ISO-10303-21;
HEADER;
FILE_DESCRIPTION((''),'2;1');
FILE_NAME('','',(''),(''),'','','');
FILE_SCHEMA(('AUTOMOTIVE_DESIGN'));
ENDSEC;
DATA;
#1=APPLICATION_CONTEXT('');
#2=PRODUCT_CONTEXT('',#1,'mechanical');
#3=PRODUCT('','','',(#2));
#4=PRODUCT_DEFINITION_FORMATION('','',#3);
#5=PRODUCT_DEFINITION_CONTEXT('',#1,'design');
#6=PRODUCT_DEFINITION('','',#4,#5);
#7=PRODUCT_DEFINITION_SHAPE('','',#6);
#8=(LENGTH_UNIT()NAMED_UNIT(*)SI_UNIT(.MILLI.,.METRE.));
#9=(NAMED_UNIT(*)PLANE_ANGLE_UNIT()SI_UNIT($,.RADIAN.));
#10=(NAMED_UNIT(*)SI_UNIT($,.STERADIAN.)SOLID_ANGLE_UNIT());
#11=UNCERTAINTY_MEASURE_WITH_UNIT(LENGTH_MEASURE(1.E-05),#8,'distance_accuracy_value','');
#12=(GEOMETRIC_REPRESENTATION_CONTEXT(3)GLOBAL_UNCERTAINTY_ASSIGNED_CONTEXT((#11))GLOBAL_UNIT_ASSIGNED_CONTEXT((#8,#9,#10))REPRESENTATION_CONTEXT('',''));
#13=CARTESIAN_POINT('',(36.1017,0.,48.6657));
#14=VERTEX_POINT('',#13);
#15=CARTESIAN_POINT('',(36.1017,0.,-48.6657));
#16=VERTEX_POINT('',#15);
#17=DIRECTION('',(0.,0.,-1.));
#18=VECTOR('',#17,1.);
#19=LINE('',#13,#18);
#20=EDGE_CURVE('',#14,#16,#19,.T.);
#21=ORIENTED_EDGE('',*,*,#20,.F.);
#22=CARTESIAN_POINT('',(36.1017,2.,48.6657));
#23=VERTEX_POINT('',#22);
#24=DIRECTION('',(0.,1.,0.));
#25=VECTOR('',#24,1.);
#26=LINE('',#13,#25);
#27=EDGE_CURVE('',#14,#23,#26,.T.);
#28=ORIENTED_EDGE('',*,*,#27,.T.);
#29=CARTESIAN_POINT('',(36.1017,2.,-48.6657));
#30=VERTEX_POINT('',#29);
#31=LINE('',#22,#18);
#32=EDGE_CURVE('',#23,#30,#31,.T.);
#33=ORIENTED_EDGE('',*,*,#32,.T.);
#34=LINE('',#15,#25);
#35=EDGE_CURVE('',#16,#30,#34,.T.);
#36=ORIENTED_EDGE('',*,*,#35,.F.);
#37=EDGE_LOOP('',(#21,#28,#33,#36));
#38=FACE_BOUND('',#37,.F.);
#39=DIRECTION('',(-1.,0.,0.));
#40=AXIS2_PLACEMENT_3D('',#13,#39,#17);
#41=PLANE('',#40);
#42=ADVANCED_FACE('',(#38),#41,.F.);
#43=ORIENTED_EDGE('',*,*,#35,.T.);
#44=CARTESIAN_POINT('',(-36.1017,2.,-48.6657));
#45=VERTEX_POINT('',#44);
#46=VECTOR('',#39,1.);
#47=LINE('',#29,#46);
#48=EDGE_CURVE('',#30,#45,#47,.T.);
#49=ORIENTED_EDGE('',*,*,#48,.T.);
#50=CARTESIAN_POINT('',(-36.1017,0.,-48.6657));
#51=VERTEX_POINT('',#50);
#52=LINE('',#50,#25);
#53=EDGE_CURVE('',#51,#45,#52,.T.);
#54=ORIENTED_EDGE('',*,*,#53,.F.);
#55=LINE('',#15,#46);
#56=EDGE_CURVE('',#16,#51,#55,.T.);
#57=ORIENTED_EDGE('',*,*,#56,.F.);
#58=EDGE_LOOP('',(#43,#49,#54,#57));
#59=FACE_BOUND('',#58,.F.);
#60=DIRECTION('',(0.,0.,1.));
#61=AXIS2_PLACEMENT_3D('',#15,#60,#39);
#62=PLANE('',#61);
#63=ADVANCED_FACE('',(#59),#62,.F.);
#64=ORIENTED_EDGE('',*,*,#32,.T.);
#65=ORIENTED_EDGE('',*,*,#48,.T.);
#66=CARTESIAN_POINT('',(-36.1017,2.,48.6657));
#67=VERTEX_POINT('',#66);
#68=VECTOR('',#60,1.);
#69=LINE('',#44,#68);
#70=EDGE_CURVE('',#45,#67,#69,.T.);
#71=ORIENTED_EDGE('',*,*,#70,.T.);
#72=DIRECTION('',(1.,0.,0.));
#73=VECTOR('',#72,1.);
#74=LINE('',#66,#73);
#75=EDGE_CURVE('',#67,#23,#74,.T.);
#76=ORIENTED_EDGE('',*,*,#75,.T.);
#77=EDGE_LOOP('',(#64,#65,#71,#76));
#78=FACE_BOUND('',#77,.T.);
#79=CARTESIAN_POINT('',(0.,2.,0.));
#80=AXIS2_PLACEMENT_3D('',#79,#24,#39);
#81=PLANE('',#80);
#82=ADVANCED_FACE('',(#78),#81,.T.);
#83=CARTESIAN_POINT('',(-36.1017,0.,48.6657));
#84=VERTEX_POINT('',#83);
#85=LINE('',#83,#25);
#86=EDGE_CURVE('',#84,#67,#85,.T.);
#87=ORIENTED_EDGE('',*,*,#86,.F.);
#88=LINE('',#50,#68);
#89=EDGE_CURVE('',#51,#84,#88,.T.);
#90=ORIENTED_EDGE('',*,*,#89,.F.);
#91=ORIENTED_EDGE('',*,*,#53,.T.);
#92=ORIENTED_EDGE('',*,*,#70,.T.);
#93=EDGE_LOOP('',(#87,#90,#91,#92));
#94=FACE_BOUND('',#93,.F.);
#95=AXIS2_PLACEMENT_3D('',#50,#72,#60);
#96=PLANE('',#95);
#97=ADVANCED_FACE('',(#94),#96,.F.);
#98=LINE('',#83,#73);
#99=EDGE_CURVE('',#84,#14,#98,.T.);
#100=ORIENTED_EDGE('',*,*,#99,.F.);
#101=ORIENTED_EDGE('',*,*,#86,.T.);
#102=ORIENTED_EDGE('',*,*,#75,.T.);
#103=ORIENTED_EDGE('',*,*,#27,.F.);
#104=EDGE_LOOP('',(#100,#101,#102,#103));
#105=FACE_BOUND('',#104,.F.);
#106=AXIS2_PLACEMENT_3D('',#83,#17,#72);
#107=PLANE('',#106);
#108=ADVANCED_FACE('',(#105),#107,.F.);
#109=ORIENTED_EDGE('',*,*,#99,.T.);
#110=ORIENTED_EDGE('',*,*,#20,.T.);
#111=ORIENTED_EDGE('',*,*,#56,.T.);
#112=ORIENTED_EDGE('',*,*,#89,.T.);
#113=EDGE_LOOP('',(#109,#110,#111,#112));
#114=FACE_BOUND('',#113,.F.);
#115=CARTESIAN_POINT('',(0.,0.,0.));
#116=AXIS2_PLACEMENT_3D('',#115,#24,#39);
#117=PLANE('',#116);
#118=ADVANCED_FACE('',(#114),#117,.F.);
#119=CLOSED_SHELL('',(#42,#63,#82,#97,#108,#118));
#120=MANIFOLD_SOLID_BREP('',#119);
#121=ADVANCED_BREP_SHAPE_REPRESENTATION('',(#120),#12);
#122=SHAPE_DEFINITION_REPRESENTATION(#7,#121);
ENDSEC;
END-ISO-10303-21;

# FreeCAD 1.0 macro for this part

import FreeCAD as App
import Part
import Sketcher

V = App.Vector


def add_polygon(sketch, points):
    """Adds a closed chain of lines whose ends are joined by coincident constraints."""
    first, n = sketch.GeometryCount, len(points)
    for a, b in zip(points, points[1:] + points[:1]):
        sketch.addGeometry(Part.LineSegment(App.Vector(*a, 0), App.Vector(*b, 0)), False)
    for i in range(n):
        sketch.addConstraint(Sketcher.Constraint("Coincident", first + i, 2, first + (i + 1) % n, 1))

doc = App.newDocument("Part")
params = doc.addObject("Spreadsheet::Sheet", "Params")
for row, (alias, value) in enumerate([
    ("pad1_length", "2 mm"),
], start=1):
    params.set(f"A{row}", alias)
    params.set(f"B{row}", "=" + value)
    params.setAlias(f"B{row}", alias)

body = doc.addObject("PartDesign::Body", "Body")

# Sketch on XZ plane
sketch1 = body.newObject("Sketcher::SketchObject", "Sketch")
sketch1.AttachmentSupport = (doc.getObject("XZ_Plane"), [""])
sketch1.MapMode = "FlatFace"
add_polygon(sketch1, [(-36, -49), (-36, 49), (36, 49), (36, -49)])  # lines 0-3
sketch1.addConstraint([
    Sketcher.Constraint("Vertical", 0),
    Sketcher.Constraint("Horizontal", 1),
    Sketcher.Constraint("Vertical", 2),
    Sketcher.Constraint("Horizontal", 3),
    Sketcher.Constraint("Symmetric", 0, 2, 2, 2, -1, 1),
    Sketcher.Constraint("DistanceX", 1, 1, 1, 2, 72.2034),
    Sketcher.Constraint("DistanceY", 0, 1, 0, 2, 97.3314),
])
pad1 = body.newObject("PartDesign::Pad", "Pad")
pad1.Profile = sketch1
pad1.setExpression("Length", "Params.pad1_length")
pad1.Reversed = True

doc.recompute()
